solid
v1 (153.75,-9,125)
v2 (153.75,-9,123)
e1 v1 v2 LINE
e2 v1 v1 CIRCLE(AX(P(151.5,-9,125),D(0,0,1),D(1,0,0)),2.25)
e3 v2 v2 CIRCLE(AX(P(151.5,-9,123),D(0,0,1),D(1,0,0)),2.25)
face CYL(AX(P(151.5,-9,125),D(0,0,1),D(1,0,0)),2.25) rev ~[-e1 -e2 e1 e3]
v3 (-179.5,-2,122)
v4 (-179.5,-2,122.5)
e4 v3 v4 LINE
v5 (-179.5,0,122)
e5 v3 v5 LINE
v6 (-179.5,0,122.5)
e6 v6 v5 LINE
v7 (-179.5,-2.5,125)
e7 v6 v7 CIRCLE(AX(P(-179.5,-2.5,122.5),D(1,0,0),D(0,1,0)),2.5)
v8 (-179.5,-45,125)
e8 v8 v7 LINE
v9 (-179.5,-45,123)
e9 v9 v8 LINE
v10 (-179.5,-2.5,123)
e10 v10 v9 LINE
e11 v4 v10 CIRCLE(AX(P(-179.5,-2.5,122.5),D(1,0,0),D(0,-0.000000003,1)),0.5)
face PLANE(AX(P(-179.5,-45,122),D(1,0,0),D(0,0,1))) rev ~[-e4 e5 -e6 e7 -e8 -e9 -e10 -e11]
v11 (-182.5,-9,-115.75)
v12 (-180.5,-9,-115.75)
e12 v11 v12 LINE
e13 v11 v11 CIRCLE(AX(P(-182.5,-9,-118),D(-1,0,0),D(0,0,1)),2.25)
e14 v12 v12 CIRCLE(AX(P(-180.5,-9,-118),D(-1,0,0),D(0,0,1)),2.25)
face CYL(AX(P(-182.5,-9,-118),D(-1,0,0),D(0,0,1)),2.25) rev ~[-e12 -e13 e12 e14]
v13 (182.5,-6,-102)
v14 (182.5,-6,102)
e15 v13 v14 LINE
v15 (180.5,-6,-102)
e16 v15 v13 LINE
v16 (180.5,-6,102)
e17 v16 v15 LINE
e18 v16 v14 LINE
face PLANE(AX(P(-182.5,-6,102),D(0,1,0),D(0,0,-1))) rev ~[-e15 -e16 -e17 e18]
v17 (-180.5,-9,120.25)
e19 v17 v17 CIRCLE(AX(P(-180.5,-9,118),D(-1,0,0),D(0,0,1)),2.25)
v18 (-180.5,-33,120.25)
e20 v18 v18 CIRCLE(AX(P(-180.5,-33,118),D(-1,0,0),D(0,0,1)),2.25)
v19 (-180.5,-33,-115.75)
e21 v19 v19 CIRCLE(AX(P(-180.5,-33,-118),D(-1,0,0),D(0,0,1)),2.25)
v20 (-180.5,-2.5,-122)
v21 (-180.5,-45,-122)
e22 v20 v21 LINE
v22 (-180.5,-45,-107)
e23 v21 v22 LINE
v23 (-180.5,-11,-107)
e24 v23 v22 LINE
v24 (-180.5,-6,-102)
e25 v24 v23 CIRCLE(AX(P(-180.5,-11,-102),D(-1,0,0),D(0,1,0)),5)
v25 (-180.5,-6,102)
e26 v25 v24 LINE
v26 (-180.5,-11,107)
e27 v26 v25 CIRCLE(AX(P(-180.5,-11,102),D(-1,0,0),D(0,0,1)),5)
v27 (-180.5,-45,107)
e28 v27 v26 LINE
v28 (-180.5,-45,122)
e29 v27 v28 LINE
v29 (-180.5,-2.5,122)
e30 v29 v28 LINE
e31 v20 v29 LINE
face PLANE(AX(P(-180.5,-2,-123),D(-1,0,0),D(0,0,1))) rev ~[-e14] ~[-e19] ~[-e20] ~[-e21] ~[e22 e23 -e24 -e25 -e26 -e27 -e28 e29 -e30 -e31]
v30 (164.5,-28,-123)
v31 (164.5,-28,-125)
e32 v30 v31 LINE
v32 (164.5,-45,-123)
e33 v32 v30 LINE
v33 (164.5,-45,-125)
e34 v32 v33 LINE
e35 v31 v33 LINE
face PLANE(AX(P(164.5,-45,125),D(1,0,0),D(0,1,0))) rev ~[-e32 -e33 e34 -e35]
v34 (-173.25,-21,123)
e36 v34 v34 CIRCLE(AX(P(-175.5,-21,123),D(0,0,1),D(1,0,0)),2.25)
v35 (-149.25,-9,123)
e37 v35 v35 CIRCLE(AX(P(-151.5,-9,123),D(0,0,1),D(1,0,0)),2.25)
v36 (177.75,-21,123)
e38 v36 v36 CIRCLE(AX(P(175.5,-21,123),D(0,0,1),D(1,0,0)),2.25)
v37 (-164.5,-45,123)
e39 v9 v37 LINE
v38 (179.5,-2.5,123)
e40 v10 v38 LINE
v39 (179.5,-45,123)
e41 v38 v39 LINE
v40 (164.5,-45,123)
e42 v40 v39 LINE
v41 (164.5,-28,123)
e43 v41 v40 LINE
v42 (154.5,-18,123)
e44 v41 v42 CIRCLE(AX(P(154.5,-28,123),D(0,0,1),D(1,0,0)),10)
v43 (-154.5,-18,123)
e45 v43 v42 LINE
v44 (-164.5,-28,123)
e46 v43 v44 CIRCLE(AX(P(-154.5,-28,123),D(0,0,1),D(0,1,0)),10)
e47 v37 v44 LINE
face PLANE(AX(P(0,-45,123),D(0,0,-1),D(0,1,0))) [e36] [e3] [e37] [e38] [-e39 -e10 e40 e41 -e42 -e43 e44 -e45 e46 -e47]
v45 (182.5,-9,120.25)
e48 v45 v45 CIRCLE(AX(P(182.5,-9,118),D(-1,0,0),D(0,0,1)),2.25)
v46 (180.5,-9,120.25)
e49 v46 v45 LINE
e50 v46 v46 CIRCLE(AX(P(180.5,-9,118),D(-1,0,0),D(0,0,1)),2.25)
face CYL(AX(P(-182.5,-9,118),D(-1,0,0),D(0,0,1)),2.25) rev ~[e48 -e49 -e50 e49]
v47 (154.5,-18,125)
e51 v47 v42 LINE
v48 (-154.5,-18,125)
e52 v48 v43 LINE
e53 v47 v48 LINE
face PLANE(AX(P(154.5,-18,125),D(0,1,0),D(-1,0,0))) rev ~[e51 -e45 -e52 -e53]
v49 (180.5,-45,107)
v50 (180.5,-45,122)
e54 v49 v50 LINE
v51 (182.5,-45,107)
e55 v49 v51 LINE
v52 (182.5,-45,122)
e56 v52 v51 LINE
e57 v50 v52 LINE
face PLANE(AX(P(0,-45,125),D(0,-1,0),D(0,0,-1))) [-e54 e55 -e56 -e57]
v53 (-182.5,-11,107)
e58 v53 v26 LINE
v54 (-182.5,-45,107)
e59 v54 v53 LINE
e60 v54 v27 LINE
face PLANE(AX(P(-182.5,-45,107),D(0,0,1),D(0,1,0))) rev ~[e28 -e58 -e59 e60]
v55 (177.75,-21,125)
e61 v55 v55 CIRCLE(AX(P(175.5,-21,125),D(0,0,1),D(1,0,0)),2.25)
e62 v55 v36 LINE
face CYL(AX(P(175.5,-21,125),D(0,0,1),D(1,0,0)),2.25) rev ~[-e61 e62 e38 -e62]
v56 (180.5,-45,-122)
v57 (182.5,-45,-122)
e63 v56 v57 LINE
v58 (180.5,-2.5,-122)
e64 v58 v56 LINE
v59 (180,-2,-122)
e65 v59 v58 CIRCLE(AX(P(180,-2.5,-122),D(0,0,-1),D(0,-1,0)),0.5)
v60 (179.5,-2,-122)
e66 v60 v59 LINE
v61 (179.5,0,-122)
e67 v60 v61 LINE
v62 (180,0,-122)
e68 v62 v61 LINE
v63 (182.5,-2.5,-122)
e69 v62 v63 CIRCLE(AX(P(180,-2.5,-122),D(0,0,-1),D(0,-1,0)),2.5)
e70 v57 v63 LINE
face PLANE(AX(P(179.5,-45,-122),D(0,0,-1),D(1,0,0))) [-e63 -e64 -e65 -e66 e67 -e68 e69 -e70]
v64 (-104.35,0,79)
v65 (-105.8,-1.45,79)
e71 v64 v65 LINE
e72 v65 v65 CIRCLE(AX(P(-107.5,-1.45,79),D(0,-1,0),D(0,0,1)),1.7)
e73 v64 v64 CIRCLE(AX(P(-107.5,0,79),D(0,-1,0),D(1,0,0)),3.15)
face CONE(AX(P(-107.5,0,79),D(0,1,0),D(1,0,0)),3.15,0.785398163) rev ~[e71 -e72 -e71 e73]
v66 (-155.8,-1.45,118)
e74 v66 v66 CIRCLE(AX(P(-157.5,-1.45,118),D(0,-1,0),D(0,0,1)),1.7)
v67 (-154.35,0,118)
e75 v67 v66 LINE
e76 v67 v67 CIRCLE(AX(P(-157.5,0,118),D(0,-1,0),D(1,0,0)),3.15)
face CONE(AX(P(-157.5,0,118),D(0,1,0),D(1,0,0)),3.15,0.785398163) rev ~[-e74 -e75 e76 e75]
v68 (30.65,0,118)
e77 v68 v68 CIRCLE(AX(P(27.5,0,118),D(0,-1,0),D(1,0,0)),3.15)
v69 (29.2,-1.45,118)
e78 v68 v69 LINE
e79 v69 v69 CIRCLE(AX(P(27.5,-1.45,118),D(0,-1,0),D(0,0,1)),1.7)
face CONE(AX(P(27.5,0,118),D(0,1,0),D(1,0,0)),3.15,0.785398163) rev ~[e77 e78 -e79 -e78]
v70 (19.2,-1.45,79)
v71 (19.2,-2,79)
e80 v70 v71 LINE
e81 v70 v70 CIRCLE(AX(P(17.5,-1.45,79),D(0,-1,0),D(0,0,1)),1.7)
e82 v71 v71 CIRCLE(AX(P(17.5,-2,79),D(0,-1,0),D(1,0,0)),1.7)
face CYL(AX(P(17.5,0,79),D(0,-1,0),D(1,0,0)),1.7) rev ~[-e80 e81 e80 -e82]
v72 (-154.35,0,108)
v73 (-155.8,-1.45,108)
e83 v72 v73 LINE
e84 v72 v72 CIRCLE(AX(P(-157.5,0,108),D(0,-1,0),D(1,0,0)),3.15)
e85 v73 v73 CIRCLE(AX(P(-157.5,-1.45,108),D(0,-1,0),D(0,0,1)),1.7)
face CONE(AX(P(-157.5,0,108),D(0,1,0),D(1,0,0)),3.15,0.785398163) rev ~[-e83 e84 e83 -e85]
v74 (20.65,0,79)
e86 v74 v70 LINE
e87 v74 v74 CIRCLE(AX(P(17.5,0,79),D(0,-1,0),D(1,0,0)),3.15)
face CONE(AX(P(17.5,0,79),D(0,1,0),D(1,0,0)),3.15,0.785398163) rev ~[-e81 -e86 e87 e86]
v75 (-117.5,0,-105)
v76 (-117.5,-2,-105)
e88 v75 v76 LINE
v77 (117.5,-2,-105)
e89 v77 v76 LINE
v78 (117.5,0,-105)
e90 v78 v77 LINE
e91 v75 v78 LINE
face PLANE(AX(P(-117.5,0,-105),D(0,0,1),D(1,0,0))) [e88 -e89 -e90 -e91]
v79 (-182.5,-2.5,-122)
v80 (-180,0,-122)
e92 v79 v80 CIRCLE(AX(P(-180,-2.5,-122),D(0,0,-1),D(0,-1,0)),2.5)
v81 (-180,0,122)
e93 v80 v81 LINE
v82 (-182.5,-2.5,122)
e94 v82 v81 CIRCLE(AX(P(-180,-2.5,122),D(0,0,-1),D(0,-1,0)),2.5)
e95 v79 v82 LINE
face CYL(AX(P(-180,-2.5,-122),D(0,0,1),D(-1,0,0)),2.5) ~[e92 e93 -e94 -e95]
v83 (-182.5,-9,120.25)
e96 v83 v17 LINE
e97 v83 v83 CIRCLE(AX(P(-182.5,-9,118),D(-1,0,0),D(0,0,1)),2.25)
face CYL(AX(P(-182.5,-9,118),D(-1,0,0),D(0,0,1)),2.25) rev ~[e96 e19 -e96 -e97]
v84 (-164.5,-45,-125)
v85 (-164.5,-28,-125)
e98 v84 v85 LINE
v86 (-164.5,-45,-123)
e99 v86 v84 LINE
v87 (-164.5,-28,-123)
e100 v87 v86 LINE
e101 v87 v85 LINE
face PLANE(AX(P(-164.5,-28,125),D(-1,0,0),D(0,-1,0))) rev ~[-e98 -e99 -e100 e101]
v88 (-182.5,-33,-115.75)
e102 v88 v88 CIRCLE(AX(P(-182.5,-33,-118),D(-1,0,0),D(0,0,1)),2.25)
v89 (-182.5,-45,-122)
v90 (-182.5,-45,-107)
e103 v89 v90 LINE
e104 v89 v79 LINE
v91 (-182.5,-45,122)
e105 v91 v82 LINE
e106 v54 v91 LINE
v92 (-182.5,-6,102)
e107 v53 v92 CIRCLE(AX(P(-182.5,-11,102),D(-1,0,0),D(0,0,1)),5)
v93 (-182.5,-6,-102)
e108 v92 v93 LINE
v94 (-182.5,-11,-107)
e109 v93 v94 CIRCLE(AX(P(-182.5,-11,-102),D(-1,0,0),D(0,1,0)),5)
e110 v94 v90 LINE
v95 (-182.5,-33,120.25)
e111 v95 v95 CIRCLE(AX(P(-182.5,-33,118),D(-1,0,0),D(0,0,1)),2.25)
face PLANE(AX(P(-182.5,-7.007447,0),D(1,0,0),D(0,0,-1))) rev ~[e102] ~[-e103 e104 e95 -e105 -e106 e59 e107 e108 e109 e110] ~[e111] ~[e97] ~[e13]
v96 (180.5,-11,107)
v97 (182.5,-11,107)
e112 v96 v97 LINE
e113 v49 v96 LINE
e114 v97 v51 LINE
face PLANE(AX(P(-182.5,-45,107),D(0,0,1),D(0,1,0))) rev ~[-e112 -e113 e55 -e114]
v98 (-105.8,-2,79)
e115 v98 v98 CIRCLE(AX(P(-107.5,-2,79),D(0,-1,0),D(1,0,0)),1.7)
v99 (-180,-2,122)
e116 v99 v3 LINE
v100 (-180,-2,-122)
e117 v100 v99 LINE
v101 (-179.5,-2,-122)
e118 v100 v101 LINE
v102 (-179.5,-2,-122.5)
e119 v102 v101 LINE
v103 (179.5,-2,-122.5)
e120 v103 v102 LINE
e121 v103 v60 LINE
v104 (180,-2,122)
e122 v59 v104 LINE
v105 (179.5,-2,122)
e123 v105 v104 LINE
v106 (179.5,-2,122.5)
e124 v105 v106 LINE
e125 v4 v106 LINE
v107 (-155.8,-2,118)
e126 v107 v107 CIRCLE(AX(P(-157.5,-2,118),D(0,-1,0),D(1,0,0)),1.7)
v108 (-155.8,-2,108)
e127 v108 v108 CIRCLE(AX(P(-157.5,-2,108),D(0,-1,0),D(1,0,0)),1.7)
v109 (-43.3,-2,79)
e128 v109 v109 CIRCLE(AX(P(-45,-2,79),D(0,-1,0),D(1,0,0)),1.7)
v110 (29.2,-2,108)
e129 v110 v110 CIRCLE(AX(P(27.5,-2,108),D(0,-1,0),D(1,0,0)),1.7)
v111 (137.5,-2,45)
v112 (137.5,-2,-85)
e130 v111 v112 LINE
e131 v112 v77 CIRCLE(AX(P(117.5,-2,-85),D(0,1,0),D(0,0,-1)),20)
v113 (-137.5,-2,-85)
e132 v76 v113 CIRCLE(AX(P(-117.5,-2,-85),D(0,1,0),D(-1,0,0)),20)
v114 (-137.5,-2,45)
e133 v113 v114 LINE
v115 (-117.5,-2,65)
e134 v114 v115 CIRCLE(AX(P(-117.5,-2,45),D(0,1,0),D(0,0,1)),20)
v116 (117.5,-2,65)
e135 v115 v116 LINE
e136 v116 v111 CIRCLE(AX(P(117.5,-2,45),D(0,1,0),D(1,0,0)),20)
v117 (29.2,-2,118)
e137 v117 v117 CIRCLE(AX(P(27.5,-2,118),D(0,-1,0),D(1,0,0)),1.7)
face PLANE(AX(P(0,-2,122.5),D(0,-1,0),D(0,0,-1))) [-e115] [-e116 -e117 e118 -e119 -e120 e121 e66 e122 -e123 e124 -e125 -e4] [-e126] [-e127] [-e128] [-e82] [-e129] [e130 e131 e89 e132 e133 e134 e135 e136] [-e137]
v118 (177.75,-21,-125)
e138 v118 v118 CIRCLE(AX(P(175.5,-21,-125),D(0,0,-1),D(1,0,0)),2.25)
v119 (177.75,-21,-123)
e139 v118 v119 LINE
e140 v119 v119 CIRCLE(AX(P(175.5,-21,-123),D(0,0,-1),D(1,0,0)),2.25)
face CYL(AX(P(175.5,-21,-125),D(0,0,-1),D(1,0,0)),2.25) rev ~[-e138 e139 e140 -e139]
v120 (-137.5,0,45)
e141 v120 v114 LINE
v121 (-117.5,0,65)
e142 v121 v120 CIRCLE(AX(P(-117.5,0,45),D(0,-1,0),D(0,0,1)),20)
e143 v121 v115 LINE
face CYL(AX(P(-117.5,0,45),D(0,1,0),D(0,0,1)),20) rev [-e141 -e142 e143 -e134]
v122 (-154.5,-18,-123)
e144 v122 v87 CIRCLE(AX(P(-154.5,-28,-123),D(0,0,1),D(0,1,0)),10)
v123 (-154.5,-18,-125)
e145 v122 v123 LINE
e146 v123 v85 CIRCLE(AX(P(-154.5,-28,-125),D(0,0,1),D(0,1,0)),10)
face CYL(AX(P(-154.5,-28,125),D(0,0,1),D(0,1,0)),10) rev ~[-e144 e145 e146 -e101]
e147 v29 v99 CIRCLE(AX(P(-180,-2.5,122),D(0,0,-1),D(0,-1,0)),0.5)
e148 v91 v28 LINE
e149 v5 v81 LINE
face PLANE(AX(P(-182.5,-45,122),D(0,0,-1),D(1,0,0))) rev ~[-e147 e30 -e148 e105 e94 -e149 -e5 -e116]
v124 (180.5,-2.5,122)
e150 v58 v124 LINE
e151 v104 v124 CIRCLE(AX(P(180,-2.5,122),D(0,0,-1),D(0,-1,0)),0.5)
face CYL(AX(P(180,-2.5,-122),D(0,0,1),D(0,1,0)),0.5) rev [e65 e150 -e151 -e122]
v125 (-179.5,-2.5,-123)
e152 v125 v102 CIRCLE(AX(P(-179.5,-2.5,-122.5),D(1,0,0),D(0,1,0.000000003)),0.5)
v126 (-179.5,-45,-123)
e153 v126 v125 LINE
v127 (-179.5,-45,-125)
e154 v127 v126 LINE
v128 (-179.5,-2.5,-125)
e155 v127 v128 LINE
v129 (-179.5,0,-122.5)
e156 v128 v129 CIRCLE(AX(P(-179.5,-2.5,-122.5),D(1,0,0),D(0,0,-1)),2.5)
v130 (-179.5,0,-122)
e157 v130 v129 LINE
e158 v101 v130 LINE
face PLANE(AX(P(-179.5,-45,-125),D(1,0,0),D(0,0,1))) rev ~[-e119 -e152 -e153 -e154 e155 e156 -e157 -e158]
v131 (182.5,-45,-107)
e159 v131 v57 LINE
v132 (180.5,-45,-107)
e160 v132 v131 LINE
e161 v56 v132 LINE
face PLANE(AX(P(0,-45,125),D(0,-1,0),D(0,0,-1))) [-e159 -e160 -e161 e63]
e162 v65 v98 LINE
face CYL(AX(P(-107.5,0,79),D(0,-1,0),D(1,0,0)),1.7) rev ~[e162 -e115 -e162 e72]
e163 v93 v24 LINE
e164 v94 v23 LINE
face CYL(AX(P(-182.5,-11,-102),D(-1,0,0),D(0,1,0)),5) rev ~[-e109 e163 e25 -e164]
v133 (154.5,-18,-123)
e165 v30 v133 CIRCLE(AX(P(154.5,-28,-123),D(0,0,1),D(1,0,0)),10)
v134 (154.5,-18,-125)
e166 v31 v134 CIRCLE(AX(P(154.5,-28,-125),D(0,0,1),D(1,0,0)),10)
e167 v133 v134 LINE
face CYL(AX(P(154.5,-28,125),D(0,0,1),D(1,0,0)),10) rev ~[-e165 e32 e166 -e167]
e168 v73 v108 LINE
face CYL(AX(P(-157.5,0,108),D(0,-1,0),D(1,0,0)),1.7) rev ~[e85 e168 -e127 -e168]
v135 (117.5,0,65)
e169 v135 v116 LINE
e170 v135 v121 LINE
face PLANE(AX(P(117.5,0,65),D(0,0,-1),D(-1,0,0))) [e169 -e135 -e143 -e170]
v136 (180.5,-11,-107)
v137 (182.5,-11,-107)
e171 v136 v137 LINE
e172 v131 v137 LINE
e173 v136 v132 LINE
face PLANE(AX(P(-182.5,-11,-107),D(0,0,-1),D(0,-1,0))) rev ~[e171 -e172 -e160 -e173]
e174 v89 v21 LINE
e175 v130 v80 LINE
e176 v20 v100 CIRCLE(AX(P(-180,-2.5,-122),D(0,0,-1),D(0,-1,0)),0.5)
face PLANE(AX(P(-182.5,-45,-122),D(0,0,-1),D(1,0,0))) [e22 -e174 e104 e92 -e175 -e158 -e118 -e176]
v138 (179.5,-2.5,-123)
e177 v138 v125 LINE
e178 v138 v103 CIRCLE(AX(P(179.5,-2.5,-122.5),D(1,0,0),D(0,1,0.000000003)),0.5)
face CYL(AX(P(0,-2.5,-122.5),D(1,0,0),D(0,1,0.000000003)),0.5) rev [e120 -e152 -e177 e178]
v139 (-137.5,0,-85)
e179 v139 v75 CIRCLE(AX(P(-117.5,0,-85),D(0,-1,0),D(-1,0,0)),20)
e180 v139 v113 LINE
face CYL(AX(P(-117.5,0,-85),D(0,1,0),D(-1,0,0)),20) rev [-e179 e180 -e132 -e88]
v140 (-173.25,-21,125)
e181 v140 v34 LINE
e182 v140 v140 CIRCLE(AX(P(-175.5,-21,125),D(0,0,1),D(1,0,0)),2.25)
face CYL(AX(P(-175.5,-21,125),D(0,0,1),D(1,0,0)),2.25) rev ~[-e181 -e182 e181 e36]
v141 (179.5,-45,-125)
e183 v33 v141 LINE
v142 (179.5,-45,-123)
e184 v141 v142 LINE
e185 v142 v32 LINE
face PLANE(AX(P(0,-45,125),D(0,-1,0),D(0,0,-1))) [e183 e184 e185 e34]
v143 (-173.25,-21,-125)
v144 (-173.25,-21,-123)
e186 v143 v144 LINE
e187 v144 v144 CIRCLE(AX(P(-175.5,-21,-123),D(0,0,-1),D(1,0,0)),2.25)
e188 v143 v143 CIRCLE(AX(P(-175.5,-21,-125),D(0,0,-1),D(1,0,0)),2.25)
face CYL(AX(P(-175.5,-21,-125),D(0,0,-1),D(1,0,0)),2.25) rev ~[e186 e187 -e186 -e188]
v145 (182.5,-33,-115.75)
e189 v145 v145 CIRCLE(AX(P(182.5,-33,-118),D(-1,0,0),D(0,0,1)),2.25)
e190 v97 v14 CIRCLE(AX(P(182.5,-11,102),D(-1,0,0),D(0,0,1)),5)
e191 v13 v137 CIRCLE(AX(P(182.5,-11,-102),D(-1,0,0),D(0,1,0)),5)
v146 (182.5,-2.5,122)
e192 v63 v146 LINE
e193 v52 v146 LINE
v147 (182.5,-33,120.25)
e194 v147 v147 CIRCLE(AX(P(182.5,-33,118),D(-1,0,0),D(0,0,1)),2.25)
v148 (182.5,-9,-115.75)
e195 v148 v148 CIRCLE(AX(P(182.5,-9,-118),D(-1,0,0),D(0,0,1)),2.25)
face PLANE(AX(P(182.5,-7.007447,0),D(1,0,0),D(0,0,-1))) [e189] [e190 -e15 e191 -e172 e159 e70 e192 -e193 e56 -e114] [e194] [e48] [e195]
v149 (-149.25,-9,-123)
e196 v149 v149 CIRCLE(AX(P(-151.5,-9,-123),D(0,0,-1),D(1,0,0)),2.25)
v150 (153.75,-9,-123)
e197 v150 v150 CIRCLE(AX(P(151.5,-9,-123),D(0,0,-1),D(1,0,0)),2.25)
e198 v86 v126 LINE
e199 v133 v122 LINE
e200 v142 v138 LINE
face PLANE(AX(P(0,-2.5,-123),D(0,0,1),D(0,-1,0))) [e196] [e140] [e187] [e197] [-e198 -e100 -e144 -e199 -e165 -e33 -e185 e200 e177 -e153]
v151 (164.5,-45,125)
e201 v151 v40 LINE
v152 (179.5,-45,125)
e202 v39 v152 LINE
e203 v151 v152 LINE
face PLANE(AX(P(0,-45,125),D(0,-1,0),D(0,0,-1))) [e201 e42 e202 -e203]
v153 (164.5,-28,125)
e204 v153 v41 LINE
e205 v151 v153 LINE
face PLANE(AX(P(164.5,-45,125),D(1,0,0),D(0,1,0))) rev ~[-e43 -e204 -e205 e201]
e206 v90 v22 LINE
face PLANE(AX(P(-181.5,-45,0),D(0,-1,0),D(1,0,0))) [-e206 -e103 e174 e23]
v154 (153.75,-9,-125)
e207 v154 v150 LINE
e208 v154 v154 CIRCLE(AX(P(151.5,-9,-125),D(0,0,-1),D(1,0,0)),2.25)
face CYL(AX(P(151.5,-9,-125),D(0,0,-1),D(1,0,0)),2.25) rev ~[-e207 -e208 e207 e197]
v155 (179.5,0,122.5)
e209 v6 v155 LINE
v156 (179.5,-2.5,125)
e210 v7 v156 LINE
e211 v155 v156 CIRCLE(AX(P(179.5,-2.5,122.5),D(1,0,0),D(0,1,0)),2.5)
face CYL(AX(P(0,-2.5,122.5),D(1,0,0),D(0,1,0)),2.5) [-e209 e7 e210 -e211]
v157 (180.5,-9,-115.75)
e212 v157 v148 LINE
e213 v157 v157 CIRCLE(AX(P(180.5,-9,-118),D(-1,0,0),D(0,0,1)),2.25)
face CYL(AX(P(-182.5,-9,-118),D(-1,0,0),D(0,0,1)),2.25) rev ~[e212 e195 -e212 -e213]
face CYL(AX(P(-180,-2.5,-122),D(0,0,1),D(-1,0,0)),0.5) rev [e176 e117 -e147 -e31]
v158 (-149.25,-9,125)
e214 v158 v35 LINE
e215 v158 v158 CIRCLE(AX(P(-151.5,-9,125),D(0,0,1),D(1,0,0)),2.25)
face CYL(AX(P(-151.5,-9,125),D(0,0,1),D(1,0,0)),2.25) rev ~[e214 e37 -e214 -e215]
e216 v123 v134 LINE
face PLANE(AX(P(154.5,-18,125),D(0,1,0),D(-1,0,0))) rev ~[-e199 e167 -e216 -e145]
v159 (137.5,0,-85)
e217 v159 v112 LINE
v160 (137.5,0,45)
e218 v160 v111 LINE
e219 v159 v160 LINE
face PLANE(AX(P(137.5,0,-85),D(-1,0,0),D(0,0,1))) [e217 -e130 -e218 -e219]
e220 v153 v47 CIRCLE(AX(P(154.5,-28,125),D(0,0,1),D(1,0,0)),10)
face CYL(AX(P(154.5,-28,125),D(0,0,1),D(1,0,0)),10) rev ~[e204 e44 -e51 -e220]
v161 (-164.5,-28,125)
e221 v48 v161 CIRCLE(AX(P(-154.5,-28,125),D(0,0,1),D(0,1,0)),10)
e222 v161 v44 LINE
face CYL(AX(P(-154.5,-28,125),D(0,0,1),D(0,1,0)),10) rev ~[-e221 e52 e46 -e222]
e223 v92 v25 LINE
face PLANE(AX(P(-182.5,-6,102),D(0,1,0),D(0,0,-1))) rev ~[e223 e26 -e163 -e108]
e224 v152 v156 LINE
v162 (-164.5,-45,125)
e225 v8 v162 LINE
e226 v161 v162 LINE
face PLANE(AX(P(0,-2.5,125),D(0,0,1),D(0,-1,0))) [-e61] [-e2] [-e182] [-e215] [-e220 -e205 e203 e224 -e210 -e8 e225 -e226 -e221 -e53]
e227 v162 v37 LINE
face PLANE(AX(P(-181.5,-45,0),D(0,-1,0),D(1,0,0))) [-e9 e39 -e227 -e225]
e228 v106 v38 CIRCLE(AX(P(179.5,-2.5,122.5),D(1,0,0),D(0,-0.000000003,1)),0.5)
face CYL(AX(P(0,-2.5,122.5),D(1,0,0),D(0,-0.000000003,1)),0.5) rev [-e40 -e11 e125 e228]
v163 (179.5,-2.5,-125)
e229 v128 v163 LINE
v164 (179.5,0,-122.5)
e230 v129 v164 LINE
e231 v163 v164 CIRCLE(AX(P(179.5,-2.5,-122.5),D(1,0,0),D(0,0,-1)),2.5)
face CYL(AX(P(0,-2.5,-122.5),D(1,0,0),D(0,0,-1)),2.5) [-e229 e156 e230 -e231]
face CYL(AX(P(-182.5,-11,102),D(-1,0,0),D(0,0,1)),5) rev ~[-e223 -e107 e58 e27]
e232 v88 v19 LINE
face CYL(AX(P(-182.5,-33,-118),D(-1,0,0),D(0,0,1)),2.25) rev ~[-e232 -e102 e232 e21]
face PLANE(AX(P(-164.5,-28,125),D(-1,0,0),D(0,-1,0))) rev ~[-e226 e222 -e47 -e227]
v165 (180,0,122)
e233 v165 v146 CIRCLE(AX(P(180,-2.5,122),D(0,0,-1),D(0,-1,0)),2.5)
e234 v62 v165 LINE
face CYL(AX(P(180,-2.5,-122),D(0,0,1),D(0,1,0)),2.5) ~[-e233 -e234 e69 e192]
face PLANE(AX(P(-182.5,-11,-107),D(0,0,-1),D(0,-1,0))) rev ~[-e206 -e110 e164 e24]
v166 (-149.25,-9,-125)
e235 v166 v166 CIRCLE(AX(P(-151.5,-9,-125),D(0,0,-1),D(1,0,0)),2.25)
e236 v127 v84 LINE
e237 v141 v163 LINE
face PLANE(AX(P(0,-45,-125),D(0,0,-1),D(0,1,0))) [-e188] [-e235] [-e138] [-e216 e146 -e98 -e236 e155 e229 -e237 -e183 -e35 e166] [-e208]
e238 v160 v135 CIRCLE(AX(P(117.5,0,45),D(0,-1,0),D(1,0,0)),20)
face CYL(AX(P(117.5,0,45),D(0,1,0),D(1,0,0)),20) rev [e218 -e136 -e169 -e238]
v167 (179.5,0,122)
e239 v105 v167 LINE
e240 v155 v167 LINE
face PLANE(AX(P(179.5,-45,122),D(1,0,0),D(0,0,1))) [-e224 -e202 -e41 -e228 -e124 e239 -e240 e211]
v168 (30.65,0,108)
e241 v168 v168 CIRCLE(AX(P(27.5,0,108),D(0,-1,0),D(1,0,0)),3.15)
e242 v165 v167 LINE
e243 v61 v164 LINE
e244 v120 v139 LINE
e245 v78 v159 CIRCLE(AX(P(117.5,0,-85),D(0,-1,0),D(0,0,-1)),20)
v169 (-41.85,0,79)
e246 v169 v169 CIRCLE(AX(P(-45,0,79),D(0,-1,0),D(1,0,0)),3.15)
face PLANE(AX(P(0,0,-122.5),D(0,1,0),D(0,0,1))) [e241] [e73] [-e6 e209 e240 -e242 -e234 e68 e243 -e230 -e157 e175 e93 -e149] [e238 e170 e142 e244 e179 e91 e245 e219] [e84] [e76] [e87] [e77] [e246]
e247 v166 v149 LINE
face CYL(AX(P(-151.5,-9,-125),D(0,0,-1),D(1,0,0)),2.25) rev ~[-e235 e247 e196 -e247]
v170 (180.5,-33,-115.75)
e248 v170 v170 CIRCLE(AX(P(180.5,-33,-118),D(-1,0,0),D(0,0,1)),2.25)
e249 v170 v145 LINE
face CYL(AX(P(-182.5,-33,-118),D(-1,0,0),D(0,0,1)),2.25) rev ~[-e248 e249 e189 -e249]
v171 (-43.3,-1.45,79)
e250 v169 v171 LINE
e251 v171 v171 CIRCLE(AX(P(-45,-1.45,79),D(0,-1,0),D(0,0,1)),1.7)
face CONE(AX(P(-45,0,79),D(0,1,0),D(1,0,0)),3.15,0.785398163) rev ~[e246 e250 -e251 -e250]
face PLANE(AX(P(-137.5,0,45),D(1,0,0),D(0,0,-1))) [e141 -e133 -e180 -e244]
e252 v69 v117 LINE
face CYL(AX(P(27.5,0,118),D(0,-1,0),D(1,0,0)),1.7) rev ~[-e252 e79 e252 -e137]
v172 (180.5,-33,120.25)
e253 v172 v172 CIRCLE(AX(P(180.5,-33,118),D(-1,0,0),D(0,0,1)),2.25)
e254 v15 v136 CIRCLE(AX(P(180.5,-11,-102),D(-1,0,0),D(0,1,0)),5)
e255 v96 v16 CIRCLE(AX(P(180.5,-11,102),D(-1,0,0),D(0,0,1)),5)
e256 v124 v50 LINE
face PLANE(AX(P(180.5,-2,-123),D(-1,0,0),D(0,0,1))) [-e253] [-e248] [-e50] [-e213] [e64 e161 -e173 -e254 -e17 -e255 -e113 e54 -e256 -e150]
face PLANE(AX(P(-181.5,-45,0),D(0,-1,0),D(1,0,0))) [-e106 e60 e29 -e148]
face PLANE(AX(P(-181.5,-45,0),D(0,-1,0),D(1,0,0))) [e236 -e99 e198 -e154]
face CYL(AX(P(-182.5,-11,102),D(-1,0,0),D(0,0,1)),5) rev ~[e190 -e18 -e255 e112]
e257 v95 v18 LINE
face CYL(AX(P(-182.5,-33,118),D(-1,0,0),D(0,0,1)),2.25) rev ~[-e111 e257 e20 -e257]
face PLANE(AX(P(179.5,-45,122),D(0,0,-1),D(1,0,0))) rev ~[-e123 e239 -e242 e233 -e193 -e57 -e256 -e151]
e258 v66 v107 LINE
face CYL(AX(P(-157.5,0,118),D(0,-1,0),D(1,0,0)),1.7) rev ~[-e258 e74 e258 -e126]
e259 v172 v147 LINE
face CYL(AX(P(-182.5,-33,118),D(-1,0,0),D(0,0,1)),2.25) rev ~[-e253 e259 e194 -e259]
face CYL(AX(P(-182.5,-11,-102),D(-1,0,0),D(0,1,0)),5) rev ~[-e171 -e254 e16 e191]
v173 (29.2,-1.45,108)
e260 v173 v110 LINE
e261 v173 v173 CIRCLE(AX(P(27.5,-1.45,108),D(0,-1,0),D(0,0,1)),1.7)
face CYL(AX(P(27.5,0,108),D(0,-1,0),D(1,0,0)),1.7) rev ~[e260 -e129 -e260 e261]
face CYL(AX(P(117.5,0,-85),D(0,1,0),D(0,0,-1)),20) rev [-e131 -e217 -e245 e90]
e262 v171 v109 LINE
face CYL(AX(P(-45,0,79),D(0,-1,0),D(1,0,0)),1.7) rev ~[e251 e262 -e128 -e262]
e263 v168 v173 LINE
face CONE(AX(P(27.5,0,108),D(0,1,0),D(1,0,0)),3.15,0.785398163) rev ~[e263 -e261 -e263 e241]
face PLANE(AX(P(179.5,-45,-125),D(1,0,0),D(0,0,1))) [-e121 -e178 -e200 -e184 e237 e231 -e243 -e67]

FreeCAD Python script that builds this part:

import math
import FreeCAD as App
import Part
import Sketcher
from FreeCAD import Vector


def edges_at(feature, points):
    """Names of the edges that pass closest to the given points."""
    edges = feature.Shape.Edges
    near = lambda p: min(range(len(edges)), key=lambda i: edges[i].distToShape(Part.Vertex(*p))[0])
    return sorted({f"Edge{near(p) + 1}" for p in points})


def add_polygon(sketch, points):
    """Adds a closed chain of lines whose ends are joined by coincident constraints."""
    first, n = sketch.GeometryCount, len(points)
    for a, b in zip(points, points[1:] + points[:1]):
        sketch.addGeometry(Part.LineSegment(App.Vector(*a, 0), App.Vector(*b, 0)), False)
    for i in range(n):
        sketch.addConstraint(Sketcher.Constraint("Coincident", first + i, 2, first + (i + 1) % n, 1))

doc = App.newDocument("Part")
body = doc.addObject("PartDesign::Body", "Body")

sketch1 = doc.addObject("Sketcher::SketchObject", "Sketch")
body.addObject(sketch1)
sketch1.AttachmentSupport = (doc.YZ_Plane, [""])
sketch1.MapMode = "FlatFace"
sketch1.addGeometry(Part.LineSegment(Vector(-45, -123, 0), Vector(-45, -125, 0)), False)
sketch1.addGeometry(Part.LineSegment(Vector(-45, -125, 0), Vector(-2.5, -125, 0)), False)
sketch1.addGeometry(Part.ArcOfCircle(Part.Circle(Vector(-2.5, -122.5, 0), Vector(0, 0, 1), 2.5), math.radians(-90), math.radians(0)), False)
sketch1.addGeometry(Part.LineSegment(Vector(0, -122.5, 0), Vector(0, 122.5, 0)), False)
sketch1.addGeometry(Part.ArcOfCircle(Part.Circle(Vector(-2.5, 122.5, 0), Vector(0, 0, 1), 2.5), math.radians(0), math.radians(90)), False)
sketch1.addGeometry(Part.LineSegment(Vector(-2.5, 125, 0), Vector(-45, 125, 0)), False)
sketch1.addGeometry(Part.LineSegment(Vector(-45, 125, 0), Vector(-45, 123, 0)), False)
sketch1.addGeometry(Part.LineSegment(Vector(-45, 123, 0), Vector(-2.5, 123, 0)), False)
sketch1.addGeometry(Part.ArcOfCircle(Part.Circle(Vector(-2.5, 122.5, 0), Vector(0, 0, 1), 0.5), math.radians(0), math.radians(90)), False)
sketch1.addGeometry(Part.LineSegment(Vector(-2, 122.5, 0), Vector(-2, -122.5, 0)), False)
sketch1.addGeometry(Part.ArcOfCircle(Part.Circle(Vector(-2.5, -122.5, 0), Vector(0, 0, 1), 0.5), math.radians(-90), math.radians(0)), False)
sketch1.addGeometry(Part.LineSegment(Vector(-2.5, -123, 0), Vector(-45, -123, 0)), False)
sketch1.addConstraint(Sketcher.Constraint("Coincident", 0, 2, 1, 1))
sketch1.addConstraint(Sketcher.Constraint("Tangent", 1, 2, 2, 1))
sketch1.addConstraint(Sketcher.Constraint("Tangent", 2, 2, 3, 1))
sketch1.addConstraint(Sketcher.Constraint("Tangent", 3, 2, 4, 1))
sketch1.addConstraint(Sketcher.Constraint("Tangent", 4, 2, 5, 1))
sketch1.addConstraint(Sketcher.Constraint("Coincident", 5, 2, 6, 1))
sketch1.addConstraint(Sketcher.Constraint("Coincident", 6, 2, 7, 1))
sketch1.addConstraint(Sketcher.Constraint("Tangent", 7, 2, 8, 2))
sketch1.addConstraint(Sketcher.Constraint("Tangent", 8, 1, 9, 1))
sketch1.addConstraint(Sketcher.Constraint("Tangent", 9, 2, 10, 2))
sketch1.addConstraint(Sketcher.Constraint("Tangent", 10, 1, 11, 1))
sketch1.addConstraint(Sketcher.Constraint("Coincident", 11, 2, 0, 1))
sketch1.addConstraint(Sketcher.Constraint("Vertical", 0))
sketch1.addConstraint(Sketcher.Constraint("Horizontal", 1))
sketch1.addConstraint(Sketcher.Constraint("Vertical", 3))
sketch1.addConstraint(Sketcher.Constraint("Horizontal", 5))
sketch1.addConstraint(Sketcher.Constraint("Vertical", 6))
sketch1.addConstraint(Sketcher.Constraint("Horizontal", 7))
sketch1.addConstraint(Sketcher.Constraint("Vertical", 9))
sketch1.addConstraint(Sketcher.Constraint("Horizontal", 11))
sketch1.addConstraint(Sketcher.Constraint("Coincident", 8, 3, 4, 3))
sketch1.addConstraint(Sketcher.Constraint("Coincident", 10, 3, 2, 3))
sketch1.addConstraint(Sketcher.Constraint("Equal", 2, 4))
sketch1.addConstraint(Sketcher.Constraint("Symmetric", 2, 2, 3, 2, -1, 1))
sketch1.addConstraint(Sketcher.Constraint("Vertical", 0, 2, 5, 2))
sketch1.addConstraint(Sketcher.Constraint("Radius", 2, 2.5))
sketch1.addConstraint(Sketcher.Constraint("Radius", 8, 0.5))
sketch1.addConstraint(Sketcher.Constraint("DistanceY", 3, 1, 3, 2, 245.0))
sketch1.addConstraint(Sketcher.Constraint("DistanceX", 1, 1, 1, 2, 42.5))
pad1 = doc.addObject("PartDesign::Pad", "Pad")
body.addObject(pad1)
pad1.Profile = sketch1
pad1.Length = 365
pad1.Midplane = True

sketch2 = doc.addObject("Sketcher::SketchObject", "Sketch001")
body.addObject(sketch2)
sketch2.AttachmentSupport = (doc.XY_Plane, [""])
sketch2.MapMode = "FlatFace"
sketch2.AttachmentOffset = App.Placement(Vector(0, 0, 125), App.Rotation())
sketch2.addGeometry(Part.LineSegment(Vector(-164, -45, 0), Vector(164, -45, 0)), False)
sketch2.addGeometry(Part.LineSegment(Vector(164, -45, 0), Vector(164, -28, 0)), False)
sketch2.addGeometry(Part.ArcOfCircle(Part.Circle(Vector(154, -28, 0), Vector(0, 0, 1), 10), math.radians(0), math.radians(90)), False)
sketch2.addGeometry(Part.LineSegment(Vector(154, -18, 0), Vector(-154, -18, 0)), False)
sketch2.addGeometry(Part.ArcOfCircle(Part.Circle(Vector(-154, -28, 0), Vector(0, 0, 1), 10), math.radians(90), math.radians(180)), False)
sketch2.addGeometry(Part.LineSegment(Vector(-164, -28, 0), Vector(-164, -45, 0)), False)
sketch2.addConstraint(Sketcher.Constraint("Coincident", 0, 2, 1, 1))
sketch2.addConstraint(Sketcher.Constraint("Tangent", 1, 2, 2, 1))
sketch2.addConstraint(Sketcher.Constraint("Tangent", 2, 2, 3, 1))
sketch2.addConstraint(Sketcher.Constraint("Tangent", 3, 2, 4, 1))
sketch2.addConstraint(Sketcher.Constraint("Tangent", 4, 2, 5, 1))
sketch2.addConstraint(Sketcher.Constraint("Coincident", 5, 2, 0, 1))
sketch2.addConstraint(Sketcher.Constraint("Horizontal", 0))
sketch2.addConstraint(Sketcher.Constraint("Vertical", 1))
sketch2.addConstraint(Sketcher.Constraint("Horizontal", 3))
sketch2.addConstraint(Sketcher.Constraint("Vertical", 5))
sketch2.addConstraint(Sketcher.Constraint("Equal", 2, 4))
sketch2.addConstraint(Sketcher.Constraint("Radius", 2, 10.0))
sketch2.addConstraint(Sketcher.Constraint("DistanceX", 0, 1, 0, 2, 329.0))
sketch2.addConstraint(Sketcher.Constraint("DistanceY", 1, 1, 1, 2, 17.0))
sketch2.addConstraint(Sketcher.Constraint("DistanceY", 2, 3, -1, 1, 28.0))
sketch2.addConstraint(Sketcher.Constraint("DistanceX", -1, 1, 2, 3, 154.5))
pocket1 = doc.addObject("PartDesign::Pocket", "Pocket")
body.addObject(pocket1)
pocket1.Profile = sketch2
pocket1.Type = "ThroughAll"

sketch3 = doc.addObject("Sketcher::SketchObject", "Sketch002")
body.addObject(sketch3)
sketch3.AttachmentSupport = (doc.XZ_Plane, [""])
sketch3.MapMode = "FlatFace"
sketch3.addGeometry(Part.LineSegment(Vector(118, -105, 0), Vector(-118, -105, 0)), False)
sketch3.addGeometry(Part.ArcOfCircle(Part.Circle(Vector(-118, -85, 0), Vector(0, 0, 1), 20), math.radians(180), math.radians(270)), False)
sketch3.addGeometry(Part.LineSegment(Vector(-138, -85, 0), Vector(-138, 45, 0)), False)
sketch3.addGeometry(Part.ArcOfCircle(Part.Circle(Vector(-118, 45, 0), Vector(0, 0, 1), 20), math.radians(90), math.radians(180)), False)
sketch3.addGeometry(Part.LineSegment(Vector(-118, 65, 0), Vector(118, 65, 0)), False)
sketch3.addGeometry(Part.ArcOfCircle(Part.Circle(Vector(118, 45, 0), Vector(0, 0, 1), 20), math.radians(0), math.radians(90)), False)
sketch3.addGeometry(Part.LineSegment(Vector(138, 45, 0), Vector(138, -85, 0)), False)
sketch3.addGeometry(Part.ArcOfCircle(Part.Circle(Vector(118, -85, 0), Vector(0, 0, 1), 20), math.radians(-90), math.radians(0)), False)
sketch3.addConstraint(Sketcher.Constraint("Tangent", 0, 2, 1, 2))
sketch3.addConstraint(Sketcher.Constraint("Tangent", 1, 1, 2, 1))
sketch3.addConstraint(Sketcher.Constraint("Tangent", 2, 2, 3, 2))
sketch3.addConstraint(Sketcher.Constraint("Tangent", 3, 1, 4, 1))
sketch3.addConstraint(Sketcher.Constraint("Tangent", 4, 2, 5, 2))
sketch3.addConstraint(Sketcher.Constraint("Tangent", 5, 1, 6, 1))
sketch3.addConstraint(Sketcher.Constraint("Tangent", 6, 2, 7, 2))
sketch3.addConstraint(Sketcher.Constraint("Tangent", 7, 1, 0, 1))
sketch3.addConstraint(Sketcher.Constraint("Horizontal", 0))
sketch3.addConstraint(Sketcher.Constraint("Vertical", 2))
sketch3.addConstraint(Sketcher.Constraint("Horizontal", 4))
sketch3.addConstraint(Sketcher.Constraint("Vertical", 6))
sketch3.addConstraint(Sketcher.Constraint("Equal", 1, 3))
sketch3.addConstraint(Sketcher.Constraint("Equal", 3, 5))
sketch3.addConstraint(Sketcher.Constraint("Equal", 5, 7))
sketch3.addConstraint(Sketcher.Constraint("Radius", 1, 20.0))
sketch3.addConstraint(Sketcher.Constraint("DistanceX", 0, 2, 0, 1, 235.0))
sketch3.addConstraint(Sketcher.Constraint("DistanceY", 2, 1, 2, 2, 130.0))
sketch3.addConstraint(Sketcher.Constraint("DistanceY", 1, 3, -1, 1, 85.0))
sketch3.addConstraint(Sketcher.Constraint("DistanceX", 1, 3, -1, 1, 117.5))
pocket2 = doc.addObject("PartDesign::Pocket", "Pocket001")
body.addObject(pocket2)
pocket2.Profile = sketch3
pocket2.Length = 10
pocket2.Reversed = True

sketch4 = doc.addObject("Sketcher::SketchObject", "Sketch003")
body.addObject(sketch4)
sketch4.AttachmentSupport = (doc.XZ_Plane, [""])
sketch4.MapMode = "FlatFace"
sketch4.AttachmentOffset = App.Placement(Vector(0, 0, 2), App.Rotation())
add_polygon(sketch4, [(-182.5, 123), (-182.5, -123), (-180.5, -123), (-180.5, 123)])
add_polygon(sketch4, [(180.5, 123), (180.5, -123), (182.5, -123), (182.5, 123)])
sketch4.addConstraint(Sketcher.Constraint("Vertical", 0))
sketch4.addConstraint(Sketcher.Constraint("Horizontal", 1))
sketch4.addConstraint(Sketcher.Constraint("Vertical", 2))
sketch4.addConstraint(Sketcher.Constraint("Horizontal", 3))
sketch4.addConstraint(Sketcher.Constraint("Vertical", 4))
sketch4.addConstraint(Sketcher.Constraint("Horizontal", 5))
sketch4.addConstraint(Sketcher.Constraint("Vertical", 6))
sketch4.addConstraint(Sketcher.Constraint("Horizontal", 7))
sketch4.addConstraint(Sketcher.Constraint("Symmetric", 2, 2, 4, 2, -1, 1))
sketch4.addConstraint(Sketcher.Constraint("Symmetric", 0, 2, 6, 2, -1, 1))
sketch4.addConstraint(Sketcher.Constraint("Horizontal", 1, 2, 4, 2))
sketch4.addConstraint(Sketcher.Constraint("DistanceX", 1, 1, 1, 2, 2.0))
sketch4.addConstraint(Sketcher.Constraint("DistanceY", 0, 2, 0, 1, 246.0))
sketch4.addConstraint(Sketcher.Constraint("DistanceX", 1, 2, 4, 2, 361.0))
pad2 = doc.addObject("PartDesign::Pad", "Pad001")
body.addObject(pad2)
pad2.Profile = sketch4
pad2.Length = 43

sketch5 = doc.addObject("Sketcher::SketchObject", "Sketch004")
body.addObject(sketch5)
sketch5.AttachmentSupport = (doc.XZ_Plane, [""])
sketch5.MapMode = "FlatFace"
sketch5.AttachmentOffset = App.Placement(Vector(0, 0, 45), App.Rotation())
add_polygon(sketch5, [(-182.5, 125), (-182.5, 122), (-179.5, 122), (-179.5, 125)])
add_polygon(sketch5, [(-182.5, -122), (-182.5, -125), (-179.5, -125), (-179.5, -122)])
add_polygon(sketch5, [(179.5, -122), (179.5, -125), (182.5, -125), (182.5, -122)])
add_polygon(sketch5, [(179.5, 125), (179.5, 122), (182.5, 122), (182.5, 125)])
sketch5.addConstraint(Sketcher.Constraint("Vertical", 0))
sketch5.addConstraint(Sketcher.Constraint("Horizontal", 1))
sketch5.addConstraint(Sketcher.Constraint("Vertical", 2))
sketch5.addConstraint(Sketcher.Constraint("Horizontal", 3))
sketch5.addConstraint(Sketcher.Constraint("Vertical", 4))
sketch5.addConstraint(Sketcher.Constraint("Horizontal", 5))
sketch5.addConstraint(Sketcher.Constraint("Vertical", 6))
sketch5.addConstraint(Sketcher.Constraint("Horizontal", 7))
sketch5.addConstraint(Sketcher.Constraint("Vertical", 8))
sketch5.addConstraint(Sketcher.Constraint("Horizontal", 9))
sketch5.addConstraint(Sketcher.Constraint("Vertical", 10))
sketch5.addConstraint(Sketcher.Constraint("Horizontal", 11))
sketch5.addConstraint(Sketcher.Constraint("Vertical", 12))
sketch5.addConstraint(Sketcher.Constraint("Horizontal", 13))
sketch5.addConstraint(Sketcher.Constraint("Vertical", 14))
sketch5.addConstraint(Sketcher.Constraint("Horizontal", 15))
sketch5.addConstraint(Sketcher.Constraint("Symmetric", 2, 2, 8, 2, -1, 1))
sketch5.addConstraint(Sketcher.Constraint("Symmetric", 0, 2, 10, 2, -1, 1))
sketch5.addConstraint(Sketcher.Constraint("Symmetric", 6, 2, 12, 2, -1, 1))
sketch5.addConstraint(Sketcher.Constraint("Symmetric", 4, 2, 14, 2, -1, 1))
sketch5.addConstraint(Sketcher.Constraint("Symmetric", 5, 2, 8, 2, -2))
sketch5.addConstraint(Sketcher.Constraint("Symmetric", 7, 2, 10, 2, -2))
sketch5.addConstraint(Sketcher.Constraint("Equal", 15, 0))
sketch5.addConstraint(Sketcher.Constraint("DistanceX", 1, 1, 1, 2, 3.0))
sketch5.addConstraint(Sketcher.Constraint("DistanceY", -1, 1, 0, 2, 122.0))
sketch5.addConstraint(Sketcher.Constraint("DistanceX", 5, 2, 8, 2, 359.0))
pocket3 = doc.addObject("PartDesign::Pocket", "Pocket002")
body.addObject(pocket3)
pocket3.Profile = sketch5
pocket3.Type = "ThroughAll"
doc.recompute()

fillet = doc.addObject("PartDesign::Fillet", "Fillet")
body.addObject(fillet)
fillet.Base = (pocket3, edges_at(pocket3, [(-180.5, -2, 0), (180.5, -2, 0)]))
fillet.Radius = 0.5
doc.recompute()

fillet2 = doc.addObject("PartDesign::Fillet", "Fillet001")
body.addObject(fillet2)
fillet2.Base = (fillet, edges_at(fillet, [(-182.5, 0, 0), (182.5, 0, 0)]))
fillet2.Radius = 2.5

sketch6 = doc.addObject("Sketcher::SketchObject", "Sketch005")
body.addObject(sketch6)
sketch6.AttachmentSupport = (doc.YZ_Plane, [""])
sketch6.MapMode = "FlatFace"
sketch6.AttachmentOffset = App.Placement(Vector(0, 0, -182.5), App.Rotation())
sketch6.addGeometry(Part.LineSegment(Vector(-45, -107, 0), Vector(-45, 107, 0)), False)
sketch6.addGeometry(Part.LineSegment(Vector(-45, 107, 0), Vector(-11, 107, 0)), False)
sketch6.addGeometry(Part.ArcOfCircle(Part.Circle(Vector(-11, 102, 0), Vector(0, 0, 1), 5), math.radians(0), math.radians(90)), False)
sketch6.addGeometry(Part.LineSegment(Vector(-6, 102, 0), Vector(-6, -102, 0)), False)
sketch6.addGeometry(Part.ArcOfCircle(Part.Circle(Vector(-11, -102, 0), Vector(0, 0, 1), 5), math.radians(-90), math.radians(0)), False)
sketch6.addGeometry(Part.LineSegment(Vector(-11, -107, 0), Vector(-45, -107, 0)), False)
sketch6.addConstraint(Sketcher.Constraint("Coincident", 0, 2, 1, 1))
sketch6.addConstraint(Sketcher.Constraint("Tangent", 1, 2, 2, 2))
sketch6.addConstraint(Sketcher.Constraint("Tangent", 2, 1, 3, 1))
sketch6.addConstraint(Sketcher.Constraint("Tangent", 3, 2, 4, 2))
sketch6.addConstraint(Sketcher.Constraint("Tangent", 4, 1, 5, 1))
sketch6.addConstraint(Sketcher.Constraint("Coincident", 5, 2, 0, 1))
sketch6.addConstraint(Sketcher.Constraint("Vertical", 0))
sketch6.addConstraint(Sketcher.Constraint("Horizontal", 1))
sketch6.addConstraint(Sketcher.Constraint("Vertical", 3))
sketch6.addConstraint(Sketcher.Constraint("Horizontal", 5))
sketch6.addConstraint(Sketcher.Constraint("Equal", 2, 4))
sketch6.addConstraint(Sketcher.Constraint("Radius", 2, 5.0))
sketch6.addConstraint(Sketcher.Constraint("DistanceX", 1, 1, 1, 2, 34.0))
sketch6.addConstraint(Sketcher.Constraint("DistanceY", 0, 1, 0, 2, 214.0))
sketch6.addConstraint(Sketcher.Constraint("DistanceX", 2, 3, -1, 1, 11.0))
sketch6.addConstraint(Sketcher.Constraint("DistanceY", -1, 1, 2, 3, 102.0))
pocket4 = doc.addObject("PartDesign::Pocket", "Pocket003")
body.addObject(pocket4)
pocket4.Profile = sketch6
pocket4.Type = "ThroughAll"
pocket4.Reversed = True

sketch7 = doc.addObject("Sketcher::SketchObject", "Sketch006")
body.addObject(sketch7)
sketch7.AttachmentSupport = (doc.YZ_Plane, [""])
sketch7.MapMode = "FlatFace"
sketch7.AttachmentOffset = App.Placement(Vector(0, 0, -182.5), App.Rotation())
sketch7.addGeometry(Part.Circle(Vector(-9, -118, 0), Vector(0, 0, 1), 2.2), False)
sketch7.addGeometry(Part.Circle(Vector(-33, -118, 0), Vector(0, 0, 1), 2.2), False)
sketch7.addGeometry(Part.Circle(Vector(-9, 118, 0), Vector(0, 0, 1), 2.2), False)
sketch7.addGeometry(Part.Circle(Vector(-33, 118, 0), Vector(0, 0, 1), 2.2), False)
sketch7.addConstraint(Sketcher.Constraint("Equal", 0, 1))
sketch7.addConstraint(Sketcher.Constraint("Equal", 1, 2))
sketch7.addConstraint(Sketcher.Constraint("Equal", 2, 3))
sketch7.addConstraint(Sketcher.Constraint("Symmetric", 0, 3, 2, 3, -1))
sketch7.addConstraint(Sketcher.Constraint("Symmetric", 1, 3, 3, 3, -1))
sketch7.addConstraint(Sketcher.Constraint("Horizontal", 0, 3, 1, 3))
sketch7.addConstraint(Sketcher.Constraint("Diameter", 0, 4.5))
sketch7.addConstraint(Sketcher.Constraint("DistanceX", 0, 3, -1, 1, 9.0))
sketch7.addConstraint(Sketcher.Constraint("DistanceY", 0, 3, -1, 1, 118.0))
sketch7.addConstraint(Sketcher.Constraint("DistanceX", 1, 3, -1, 1, 33.0))
pocket5 = doc.addObject("PartDesign::Pocket", "Pocket004")
body.addObject(pocket5)
pocket5.Profile = sketch7
pocket5.Type = "ThroughAll"
pocket5.Reversed = True

sketch8 = doc.addObject("Sketcher::SketchObject", "Sketch007")
body.addObject(sketch8)
sketch8.AttachmentSupport = (doc.XY_Plane, [""])
sketch8.MapMode = "FlatFace"
sketch8.AttachmentOffset = App.Placement(Vector(0, 0, 125), App.Rotation())
sketch8.addGeometry(Part.Circle(Vector(-151.5, -9, 0), Vector(0, 0, 1), 2.2), False)
sketch8.addGeometry(Part.Circle(Vector(175.5, -21, 0), Vector(0, 0, 1), 2.2), False)
sketch8.addGeometry(Part.Circle(Vector(151.5, -9, 0), Vector(0, 0, 1), 2.2), False)
sketch8.addGeometry(Part.Circle(Vector(-175.5, -21, 0), Vector(0, 0, 1), 2.2), False)
sketch8.addConstraint(Sketcher.Constraint("Equal", 0, 1))
sketch8.addConstraint(Sketcher.Constraint("Equal", 1, 2))
sketch8.addConstraint(Sketcher.Constraint("Equal", 2, 3))
sketch8.addConstraint(Sketcher.Constraint("Symmetric", 0, 3, 2, 3, -2))
sketch8.addConstraint(Sketcher.Constraint("Symmetric", 1, 3, 3, 3, -2))
sketch8.addConstraint(Sketcher.Constraint("Diameter", 0, 4.5))
sketch8.addConstraint(Sketcher.Constraint("DistanceY", 0, 3, -1, 1, 9.0))
sketch8.addConstraint(Sketcher.Constraint("DistanceY", 1, 3, -1, 1, 21.0))
sketch8.addConstraint(Sketcher.Constraint("DistanceX", 0, 3, 1, 3, 327.0))
sketch8.addConstraint(Sketcher.Constraint("DistanceX", 2, 3, 1, 3, 24.0))
pocket6 = doc.addObject("PartDesign::Pocket", "Pocket005")
body.addObject(pocket6)
pocket6.Profile = sketch8
pocket6.Length = 10

sketch9 = doc.addObject("Sketcher::SketchObject", "Sketch008")
body.addObject(sketch9)
sketch9.AttachmentSupport = (doc.XY_Plane, [""])
sketch9.MapMode = "FlatFace"
sketch9.AttachmentOffset = App.Placement(Vector(0, 0, -125), App.Rotation())
sketch9.addGeometry(Part.Circle(Vector(175.5, -21, 0), Vector(0, 0, 1), 2.2), False)
sketch9.addGeometry(Part.Circle(Vector(151.5, -9, 0), Vector(0, 0, 1), 2.2), False)
sketch9.addGeometry(Part.Circle(Vector(-151.5, -9, 0), Vector(0, 0, 1), 2.2), False)
sketch9.addGeometry(Part.Circle(Vector(-175.5, -21, 0), Vector(0, 0, 1), 2.2), False)
sketch9.addConstraint(Sketcher.Constraint("Equal", 0, 1))
sketch9.addConstraint(Sketcher.Constraint("Equal", 1, 2))
sketch9.addConstraint(Sketcher.Constraint("Equal", 2, 3))
sketch9.addConstraint(Sketcher.Constraint("Symmetric", 1, 3, 2, 3, -2))
sketch9.addConstraint(Sketcher.Constraint("Symmetric", 0, 3, 3, 3, -2))
sketch9.addConstraint(Sketcher.Constraint("Diameter", 0, 4.5))
sketch9.addConstraint(Sketcher.Constraint("DistanceY", 0, 3, -1, 1, 21.0))
sketch9.addConstraint(Sketcher.Constraint("DistanceY", 1, 3, -1, 1, 9.0))
sketch9.addConstraint(Sketcher.Constraint("DistanceX", 1, 3, 0, 3, 24.0))
sketch9.addConstraint(Sketcher.Constraint("DistanceX", 2, 3, 1, 3, 303.0))
pocket7 = doc.addObject("PartDesign::Pocket", "Pocket006")
body.addObject(pocket7)
pocket7.Profile = sketch9
pocket7.Length = 10
pocket7.Reversed = True

sketch10 = doc.addObject("Sketcher::SketchObject", "Sketch009")
body.addObject(sketch10)
sketch10.AttachmentSupport = (doc.XZ_Plane, [""])
sketch10.MapMode = "FlatFace"
sketch10.addGeometry(Part.Circle(Vector(-45, 79, 0), Vector(0, 0, 1), 1.5), False)
sketch10.addGeometry(Part.Circle(Vector(17.5, 79, 0), Vector(0, 0, 1), 1.5), False)
sketch10.addGeometry(Part.Circle(Vector(-107.5, 79, 0), Vector(0, 0, 1), 1.5), False)
sketch10.addGeometry(Part.Circle(Vector(-157.5, 108, 0), Vector(0, 0, 1), 1.5), False)
sketch10.addGeometry(Part.Circle(Vector(-157.5, 118, 0), Vector(0, 0, 1), 1.5), False)
sketch10.addGeometry(Part.Circle(Vector(27.5, 108, 0), Vector(0, 0, 1), 1.5), False)
sketch10.addGeometry(Part.Circle(Vector(27.5, 118, 0), Vector(0, 0, 1), 1.5), False)
sketch10.addConstraint(Sketcher.Constraint("Equal", 0, 1))
sketch10.addConstraint(Sketcher.Constraint("Equal", 1, 2))
sketch10.addConstraint(Sketcher.Constraint("Equal", 2, 3))
sketch10.addConstraint(Sketcher.Constraint("Equal", 3, 4))
sketch10.addConstraint(Sketcher.Constraint("Equal", 4, 5))
sketch10.addConstraint(Sketcher.Constraint("Equal", 5, 6))
sketch10.addConstraint(Sketcher.Constraint("Horizontal", 0, 3, 1, 3))
sketch10.addConstraint(Sketcher.Constraint("Horizontal", 1, 3, 2, 3))
sketch10.addConstraint(Sketcher.Constraint("Horizontal", 3, 3, 5, 3))
sketch10.addConstraint(Sketcher.Constraint("Horizontal", 4, 3, 6, 3))
sketch10.addConstraint(Sketcher.Constraint("Vertical", 3, 3, 4, 3))
sketch10.addConstraint(Sketcher.Constraint("Vertical", 5, 3, 6, 3))
sketch10.addConstraint(Sketcher.Constraint("Diameter", 0, 3.0))
sketch10.addConstraint(Sketcher.Constraint("DistanceX", 0, 3, -1, 1, 45.0))
sketch10.addConstraint(Sketcher.Constraint("DistanceY", -1, 1, 0, 3, 79.0))
sketch10.addConstraint(Sketcher.Constraint("DistanceY", -1, 1, 3, 3, 108.0))
sketch10.addConstraint(Sketcher.Constraint("DistanceY", -1, 1, 4, 3, 118.0))
sketch10.addConstraint(Sketcher.Constraint("DistanceX", 2, 3, 1, 3, 125.0))
sketch10.addConstraint(Sketcher.Constraint("DistanceX", 3, 3, 2, 3, 50.0))
sketch10.addConstraint(Sketcher.Constraint("DistanceX", 1, 3, 5, 3, 10.0))
sketch10.addConstraint(Sketcher.Constraint("DistanceX", -1, 1, 1, 3, 17.5))
pocket8 = doc.addObject("PartDesign::Pocket", "Pocket007")
body.addObject(pocket8)
pocket8.Profile = sketch10
pocket8.Length = 10
pocket8.Reversed = True

sketch11 = doc.addObject("Sketcher::SketchObject", "Sketch010")
body.addObject(sketch11)
sketch11.AttachmentSupport = (doc.XZ_Plane, [""])
sketch11.MapMode = "FlatFace"
sketch11.addGeometry(Part.Circle(Vector(-107.5, 79, 0), Vector(0, 0, 1), 1.7), False)
sketch11.addGeometry(Part.Circle(Vector(-45, 79, 0), Vector(0, 0, 1), 1.7), False)
sketch11.addGeometry(Part.Circle(Vector(17.5, 79, 0), Vector(0, 0, 1), 1.7), False)
sketch11.addGeometry(Part.Circle(Vector(-157.5, 108, 0), Vector(0, 0, 1), 1.7), False)
sketch11.addGeometry(Part.Circle(Vector(-157.5, 118, 0), Vector(0, 0, 1), 1.7), False)
sketch11.addGeometry(Part.Circle(Vector(27.5, 108, 0), Vector(0, 0, 1), 1.7), False)
sketch11.addGeometry(Part.Circle(Vector(27.5, 118, 0), Vector(0, 0, 1), 1.7), False)
sketch11.addConstraint(Sketcher.Constraint("Equal", 0, 1))
sketch11.addConstraint(Sketcher.Constraint("Equal", 1, 2))
sketch11.addConstraint(Sketcher.Constraint("Equal", 2, 3))
sketch11.addConstraint(Sketcher.Constraint("Equal", 3, 4))
sketch11.addConstraint(Sketcher.Constraint("Equal", 4, 5))
sketch11.addConstraint(Sketcher.Constraint("Equal", 5, 6))
sketch11.addConstraint(Sketcher.Constraint("Horizontal", 0, 3, 1, 3))
sketch11.addConstraint(Sketcher.Constraint("Horizontal", 1, 3, 2, 3))
sketch11.addConstraint(Sketcher.Constraint("Horizontal", 3, 3, 5, 3))
sketch11.addConstraint(Sketcher.Constraint("Horizontal", 4, 3, 6, 3))
sketch11.addConstraint(Sketcher.Constraint("Vertical", 3, 3, 4, 3))
sketch11.addConstraint(Sketcher.Constraint("Vertical", 5, 3, 6, 3))
sketch11.addConstraint(Sketcher.Constraint("Diameter", 0, 3.4))
sketch11.addConstraint(Sketcher.Constraint("DistanceY", -1, 1, 0, 3, 79.0))
sketch11.addConstraint(Sketcher.Constraint("DistanceX", 1, 3, -1, 1, 45.0))
sketch11.addConstraint(Sketcher.Constraint("DistanceY", -1, 1, 3, 3, 108.0))
sketch11.addConstraint(Sketcher.Constraint("DistanceY", -1, 1, 4, 3, 118.0))
sketch11.addConstraint(Sketcher.Constraint("DistanceX", 0, 3, 2, 3, 125.0))
sketch11.addConstraint(Sketcher.Constraint("DistanceX", 3, 3, 0, 3, 50.0))
sketch11.addConstraint(Sketcher.Constraint("DistanceX", 2, 3, 5, 3, 10.0))
sketch11.addConstraint(Sketcher.Constraint("DistanceX", 0, 3, -1, 1, 107.5))
doc.recompute()
hole = doc.addObject("PartDesign::Hole", "Hole")
body.addObject(hole)
hole.Profile = sketch11
hole.ThreadType = "None"
hole.Diameter = 3.4
hole.DepthType = "ThroughAll"
hole.HoleCutType = "Countersink"
hole.HoleCutDiameter = 6.3
hole.HoleCutCountersinkAngle = 90
hole.Reversed = True

doc.recompute()
